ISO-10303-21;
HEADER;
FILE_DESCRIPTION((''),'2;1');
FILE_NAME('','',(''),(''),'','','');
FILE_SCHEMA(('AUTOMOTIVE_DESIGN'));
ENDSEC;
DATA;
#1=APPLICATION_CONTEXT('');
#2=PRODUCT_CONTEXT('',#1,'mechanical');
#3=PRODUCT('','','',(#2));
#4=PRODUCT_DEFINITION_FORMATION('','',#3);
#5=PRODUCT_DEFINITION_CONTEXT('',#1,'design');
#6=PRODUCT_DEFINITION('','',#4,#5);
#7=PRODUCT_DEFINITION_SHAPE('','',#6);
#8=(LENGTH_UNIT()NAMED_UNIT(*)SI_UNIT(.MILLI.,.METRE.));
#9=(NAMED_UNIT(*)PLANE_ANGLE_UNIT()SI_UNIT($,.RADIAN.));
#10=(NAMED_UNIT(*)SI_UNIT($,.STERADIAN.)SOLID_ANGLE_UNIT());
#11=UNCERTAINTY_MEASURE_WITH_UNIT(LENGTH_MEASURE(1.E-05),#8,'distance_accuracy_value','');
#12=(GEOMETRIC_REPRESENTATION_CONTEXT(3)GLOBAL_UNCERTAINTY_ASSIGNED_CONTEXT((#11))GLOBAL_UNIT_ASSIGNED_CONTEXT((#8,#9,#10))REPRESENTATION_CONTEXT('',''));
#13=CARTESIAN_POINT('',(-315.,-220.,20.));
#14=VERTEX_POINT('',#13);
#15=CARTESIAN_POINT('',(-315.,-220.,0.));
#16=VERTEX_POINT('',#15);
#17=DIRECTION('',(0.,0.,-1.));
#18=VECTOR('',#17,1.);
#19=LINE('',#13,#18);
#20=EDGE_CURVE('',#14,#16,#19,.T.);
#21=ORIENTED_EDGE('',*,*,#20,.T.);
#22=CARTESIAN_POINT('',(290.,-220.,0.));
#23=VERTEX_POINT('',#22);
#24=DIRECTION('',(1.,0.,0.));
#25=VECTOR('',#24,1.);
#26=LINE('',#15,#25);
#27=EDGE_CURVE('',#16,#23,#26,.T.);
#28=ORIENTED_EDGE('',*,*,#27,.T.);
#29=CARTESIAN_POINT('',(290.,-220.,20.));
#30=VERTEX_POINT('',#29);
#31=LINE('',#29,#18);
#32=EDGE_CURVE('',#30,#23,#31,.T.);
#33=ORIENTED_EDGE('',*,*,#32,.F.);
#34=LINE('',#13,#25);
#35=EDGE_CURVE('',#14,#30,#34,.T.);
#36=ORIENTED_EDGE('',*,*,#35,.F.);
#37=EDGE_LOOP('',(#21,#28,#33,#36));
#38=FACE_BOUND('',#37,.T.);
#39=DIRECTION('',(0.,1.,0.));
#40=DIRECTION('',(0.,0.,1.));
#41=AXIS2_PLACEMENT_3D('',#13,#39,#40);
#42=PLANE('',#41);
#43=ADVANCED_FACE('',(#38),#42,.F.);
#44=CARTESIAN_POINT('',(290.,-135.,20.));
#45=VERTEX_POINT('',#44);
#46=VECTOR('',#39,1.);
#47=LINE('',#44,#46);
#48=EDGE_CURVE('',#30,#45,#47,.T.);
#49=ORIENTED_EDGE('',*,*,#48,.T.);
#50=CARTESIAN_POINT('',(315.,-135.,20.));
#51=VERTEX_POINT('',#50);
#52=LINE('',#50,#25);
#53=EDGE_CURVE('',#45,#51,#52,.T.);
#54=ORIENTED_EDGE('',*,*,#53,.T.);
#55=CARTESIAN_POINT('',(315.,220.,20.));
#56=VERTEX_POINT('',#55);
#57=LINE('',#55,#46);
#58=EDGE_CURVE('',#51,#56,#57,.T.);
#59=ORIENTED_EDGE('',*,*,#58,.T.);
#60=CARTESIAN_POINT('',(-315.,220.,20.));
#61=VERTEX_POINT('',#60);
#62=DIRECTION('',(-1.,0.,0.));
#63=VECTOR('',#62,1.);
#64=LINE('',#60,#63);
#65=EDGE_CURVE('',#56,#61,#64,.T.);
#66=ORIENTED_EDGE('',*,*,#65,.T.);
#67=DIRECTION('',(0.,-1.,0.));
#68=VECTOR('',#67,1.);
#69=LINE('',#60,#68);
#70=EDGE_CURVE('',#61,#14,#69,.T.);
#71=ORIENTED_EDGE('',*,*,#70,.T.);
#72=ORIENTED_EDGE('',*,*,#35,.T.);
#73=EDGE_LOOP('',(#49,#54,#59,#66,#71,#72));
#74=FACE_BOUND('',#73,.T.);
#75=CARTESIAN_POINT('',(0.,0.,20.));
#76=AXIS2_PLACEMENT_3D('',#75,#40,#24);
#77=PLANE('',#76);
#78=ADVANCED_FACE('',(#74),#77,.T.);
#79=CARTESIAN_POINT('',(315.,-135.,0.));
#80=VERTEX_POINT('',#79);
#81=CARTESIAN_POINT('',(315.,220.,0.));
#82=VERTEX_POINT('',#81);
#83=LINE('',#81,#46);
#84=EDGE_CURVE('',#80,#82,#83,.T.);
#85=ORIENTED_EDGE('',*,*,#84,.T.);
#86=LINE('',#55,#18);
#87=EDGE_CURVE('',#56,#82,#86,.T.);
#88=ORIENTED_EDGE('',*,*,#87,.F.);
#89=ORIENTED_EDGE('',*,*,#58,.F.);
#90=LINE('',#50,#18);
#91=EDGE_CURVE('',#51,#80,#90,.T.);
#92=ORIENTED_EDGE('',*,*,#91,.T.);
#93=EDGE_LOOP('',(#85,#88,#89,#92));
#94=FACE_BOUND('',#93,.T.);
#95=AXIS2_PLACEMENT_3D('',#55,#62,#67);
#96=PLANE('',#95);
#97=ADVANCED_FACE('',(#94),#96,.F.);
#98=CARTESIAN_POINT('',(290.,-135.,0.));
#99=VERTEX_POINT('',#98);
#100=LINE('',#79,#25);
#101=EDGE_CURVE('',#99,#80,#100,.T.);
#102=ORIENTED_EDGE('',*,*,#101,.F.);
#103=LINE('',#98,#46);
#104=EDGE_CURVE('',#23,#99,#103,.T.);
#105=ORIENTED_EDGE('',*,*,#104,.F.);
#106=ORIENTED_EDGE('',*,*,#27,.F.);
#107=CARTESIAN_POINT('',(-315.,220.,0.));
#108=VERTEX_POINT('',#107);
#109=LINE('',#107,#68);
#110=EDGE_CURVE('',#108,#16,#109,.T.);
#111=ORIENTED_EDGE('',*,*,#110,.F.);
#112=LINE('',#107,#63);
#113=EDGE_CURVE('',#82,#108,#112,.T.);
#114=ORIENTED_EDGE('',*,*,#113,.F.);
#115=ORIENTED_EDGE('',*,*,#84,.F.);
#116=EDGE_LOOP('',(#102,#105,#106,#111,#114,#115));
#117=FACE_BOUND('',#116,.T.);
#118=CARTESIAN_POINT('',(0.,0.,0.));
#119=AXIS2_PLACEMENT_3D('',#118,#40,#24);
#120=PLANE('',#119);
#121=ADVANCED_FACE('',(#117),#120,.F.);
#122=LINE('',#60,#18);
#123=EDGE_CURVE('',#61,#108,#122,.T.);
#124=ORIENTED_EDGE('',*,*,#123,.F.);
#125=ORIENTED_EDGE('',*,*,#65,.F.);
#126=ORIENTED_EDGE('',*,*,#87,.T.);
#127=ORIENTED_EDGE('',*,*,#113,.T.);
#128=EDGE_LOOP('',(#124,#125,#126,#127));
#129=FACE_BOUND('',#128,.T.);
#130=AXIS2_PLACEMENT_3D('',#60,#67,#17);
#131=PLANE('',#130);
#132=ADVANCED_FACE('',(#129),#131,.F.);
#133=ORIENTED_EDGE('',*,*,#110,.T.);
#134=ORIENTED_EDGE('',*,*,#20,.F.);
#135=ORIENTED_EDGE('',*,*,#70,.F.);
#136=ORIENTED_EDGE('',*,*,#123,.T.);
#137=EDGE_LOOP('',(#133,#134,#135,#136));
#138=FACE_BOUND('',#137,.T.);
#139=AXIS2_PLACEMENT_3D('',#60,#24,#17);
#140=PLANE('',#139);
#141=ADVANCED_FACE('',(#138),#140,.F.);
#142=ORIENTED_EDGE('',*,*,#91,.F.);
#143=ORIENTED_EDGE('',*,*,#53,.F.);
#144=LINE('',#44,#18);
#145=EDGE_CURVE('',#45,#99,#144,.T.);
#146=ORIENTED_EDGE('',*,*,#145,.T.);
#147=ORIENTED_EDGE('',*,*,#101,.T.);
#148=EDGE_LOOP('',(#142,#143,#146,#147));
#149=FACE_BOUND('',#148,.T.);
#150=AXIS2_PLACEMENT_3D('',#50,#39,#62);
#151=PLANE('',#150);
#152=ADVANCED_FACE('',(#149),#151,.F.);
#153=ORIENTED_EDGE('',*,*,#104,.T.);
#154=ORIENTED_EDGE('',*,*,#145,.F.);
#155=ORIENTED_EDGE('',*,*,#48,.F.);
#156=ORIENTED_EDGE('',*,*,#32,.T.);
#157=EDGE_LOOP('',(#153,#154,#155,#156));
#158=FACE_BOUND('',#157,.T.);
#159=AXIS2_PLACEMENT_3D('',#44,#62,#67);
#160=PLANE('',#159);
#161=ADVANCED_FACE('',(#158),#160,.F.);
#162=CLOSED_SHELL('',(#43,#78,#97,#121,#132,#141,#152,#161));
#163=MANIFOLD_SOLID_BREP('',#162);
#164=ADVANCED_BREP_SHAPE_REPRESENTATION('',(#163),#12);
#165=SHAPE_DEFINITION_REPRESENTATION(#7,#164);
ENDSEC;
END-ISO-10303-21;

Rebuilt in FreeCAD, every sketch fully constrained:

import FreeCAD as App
import Part
import Sketcher

doc = App.newDocument("Part")
body = doc.addObject("PartDesign::Body", "Body")

sketch1 = doc.addObject("Sketcher::SketchObject", "Sketch")
body.addObject(sketch1)
sketch1.AttachmentSupport = (doc.XY_Plane, [""])
sketch1.MapMode = "FlatFace"
sketch1.addGeometry([
    Part.LineSegment(App.Vector(290, -135, 0), App.Vector(315, -135, 0)),
    Part.LineSegment(App.Vector(315, -135, 0), App.Vector(315, 220, 0)),
    Part.LineSegment(App.Vector(315, 220, 0), App.Vector(-315, 220, 0)),
    Part.LineSegment(App.Vector(-315, 220, 0), App.Vector(-315, -220, 0)),
    Part.LineSegment(App.Vector(-315, -220, 0), App.Vector(290, -220, 0)),
    Part.LineSegment(App.Vector(290, -220, 0), App.Vector(290, -135, 0)),
], False)
sketch1.addConstraint([
    Sketcher.Constraint("Coincident", 0, 2, 1, 1),
    Sketcher.Constraint("Coincident", 1, 2, 2, 1),
    Sketcher.Constraint("Coincident", 2, 2, 3, 1),
    Sketcher.Constraint("Coincident", 3, 2, 4, 1),
    Sketcher.Constraint("Coincident", 4, 2, 5, 1),
    Sketcher.Constraint("Coincident", 5, 2, 0, 1),
    Sketcher.Constraint("Horizontal", 0),
    Sketcher.Constraint("Vertical", 1),
    Sketcher.Constraint("Horizontal", 2),
    Sketcher.Constraint("Vertical", 3),
    Sketcher.Constraint("Horizontal", 4),
    Sketcher.Constraint("Vertical", 5),
    Sketcher.Constraint("Symmetric", 1, 2, 3, 2, -1, 1),
    Sketcher.Constraint("DistanceX", 0, 1, 0, 2, 25.0),
    Sketcher.Constraint("DistanceX", 2, 2, 2, 1, 630.0),
    Sketcher.Constraint("DistanceY", 1, 1, 1, 2, 355.0),
    Sketcher.Constraint("DistanceY", 3, 2, 3, 1, 440.0),
])
pad1 = doc.addObject("PartDesign::Pad", "Pad")
body.addObject(pad1)
pad1.Profile = sketch1
pad1.Length = 20

doc.recompute()
